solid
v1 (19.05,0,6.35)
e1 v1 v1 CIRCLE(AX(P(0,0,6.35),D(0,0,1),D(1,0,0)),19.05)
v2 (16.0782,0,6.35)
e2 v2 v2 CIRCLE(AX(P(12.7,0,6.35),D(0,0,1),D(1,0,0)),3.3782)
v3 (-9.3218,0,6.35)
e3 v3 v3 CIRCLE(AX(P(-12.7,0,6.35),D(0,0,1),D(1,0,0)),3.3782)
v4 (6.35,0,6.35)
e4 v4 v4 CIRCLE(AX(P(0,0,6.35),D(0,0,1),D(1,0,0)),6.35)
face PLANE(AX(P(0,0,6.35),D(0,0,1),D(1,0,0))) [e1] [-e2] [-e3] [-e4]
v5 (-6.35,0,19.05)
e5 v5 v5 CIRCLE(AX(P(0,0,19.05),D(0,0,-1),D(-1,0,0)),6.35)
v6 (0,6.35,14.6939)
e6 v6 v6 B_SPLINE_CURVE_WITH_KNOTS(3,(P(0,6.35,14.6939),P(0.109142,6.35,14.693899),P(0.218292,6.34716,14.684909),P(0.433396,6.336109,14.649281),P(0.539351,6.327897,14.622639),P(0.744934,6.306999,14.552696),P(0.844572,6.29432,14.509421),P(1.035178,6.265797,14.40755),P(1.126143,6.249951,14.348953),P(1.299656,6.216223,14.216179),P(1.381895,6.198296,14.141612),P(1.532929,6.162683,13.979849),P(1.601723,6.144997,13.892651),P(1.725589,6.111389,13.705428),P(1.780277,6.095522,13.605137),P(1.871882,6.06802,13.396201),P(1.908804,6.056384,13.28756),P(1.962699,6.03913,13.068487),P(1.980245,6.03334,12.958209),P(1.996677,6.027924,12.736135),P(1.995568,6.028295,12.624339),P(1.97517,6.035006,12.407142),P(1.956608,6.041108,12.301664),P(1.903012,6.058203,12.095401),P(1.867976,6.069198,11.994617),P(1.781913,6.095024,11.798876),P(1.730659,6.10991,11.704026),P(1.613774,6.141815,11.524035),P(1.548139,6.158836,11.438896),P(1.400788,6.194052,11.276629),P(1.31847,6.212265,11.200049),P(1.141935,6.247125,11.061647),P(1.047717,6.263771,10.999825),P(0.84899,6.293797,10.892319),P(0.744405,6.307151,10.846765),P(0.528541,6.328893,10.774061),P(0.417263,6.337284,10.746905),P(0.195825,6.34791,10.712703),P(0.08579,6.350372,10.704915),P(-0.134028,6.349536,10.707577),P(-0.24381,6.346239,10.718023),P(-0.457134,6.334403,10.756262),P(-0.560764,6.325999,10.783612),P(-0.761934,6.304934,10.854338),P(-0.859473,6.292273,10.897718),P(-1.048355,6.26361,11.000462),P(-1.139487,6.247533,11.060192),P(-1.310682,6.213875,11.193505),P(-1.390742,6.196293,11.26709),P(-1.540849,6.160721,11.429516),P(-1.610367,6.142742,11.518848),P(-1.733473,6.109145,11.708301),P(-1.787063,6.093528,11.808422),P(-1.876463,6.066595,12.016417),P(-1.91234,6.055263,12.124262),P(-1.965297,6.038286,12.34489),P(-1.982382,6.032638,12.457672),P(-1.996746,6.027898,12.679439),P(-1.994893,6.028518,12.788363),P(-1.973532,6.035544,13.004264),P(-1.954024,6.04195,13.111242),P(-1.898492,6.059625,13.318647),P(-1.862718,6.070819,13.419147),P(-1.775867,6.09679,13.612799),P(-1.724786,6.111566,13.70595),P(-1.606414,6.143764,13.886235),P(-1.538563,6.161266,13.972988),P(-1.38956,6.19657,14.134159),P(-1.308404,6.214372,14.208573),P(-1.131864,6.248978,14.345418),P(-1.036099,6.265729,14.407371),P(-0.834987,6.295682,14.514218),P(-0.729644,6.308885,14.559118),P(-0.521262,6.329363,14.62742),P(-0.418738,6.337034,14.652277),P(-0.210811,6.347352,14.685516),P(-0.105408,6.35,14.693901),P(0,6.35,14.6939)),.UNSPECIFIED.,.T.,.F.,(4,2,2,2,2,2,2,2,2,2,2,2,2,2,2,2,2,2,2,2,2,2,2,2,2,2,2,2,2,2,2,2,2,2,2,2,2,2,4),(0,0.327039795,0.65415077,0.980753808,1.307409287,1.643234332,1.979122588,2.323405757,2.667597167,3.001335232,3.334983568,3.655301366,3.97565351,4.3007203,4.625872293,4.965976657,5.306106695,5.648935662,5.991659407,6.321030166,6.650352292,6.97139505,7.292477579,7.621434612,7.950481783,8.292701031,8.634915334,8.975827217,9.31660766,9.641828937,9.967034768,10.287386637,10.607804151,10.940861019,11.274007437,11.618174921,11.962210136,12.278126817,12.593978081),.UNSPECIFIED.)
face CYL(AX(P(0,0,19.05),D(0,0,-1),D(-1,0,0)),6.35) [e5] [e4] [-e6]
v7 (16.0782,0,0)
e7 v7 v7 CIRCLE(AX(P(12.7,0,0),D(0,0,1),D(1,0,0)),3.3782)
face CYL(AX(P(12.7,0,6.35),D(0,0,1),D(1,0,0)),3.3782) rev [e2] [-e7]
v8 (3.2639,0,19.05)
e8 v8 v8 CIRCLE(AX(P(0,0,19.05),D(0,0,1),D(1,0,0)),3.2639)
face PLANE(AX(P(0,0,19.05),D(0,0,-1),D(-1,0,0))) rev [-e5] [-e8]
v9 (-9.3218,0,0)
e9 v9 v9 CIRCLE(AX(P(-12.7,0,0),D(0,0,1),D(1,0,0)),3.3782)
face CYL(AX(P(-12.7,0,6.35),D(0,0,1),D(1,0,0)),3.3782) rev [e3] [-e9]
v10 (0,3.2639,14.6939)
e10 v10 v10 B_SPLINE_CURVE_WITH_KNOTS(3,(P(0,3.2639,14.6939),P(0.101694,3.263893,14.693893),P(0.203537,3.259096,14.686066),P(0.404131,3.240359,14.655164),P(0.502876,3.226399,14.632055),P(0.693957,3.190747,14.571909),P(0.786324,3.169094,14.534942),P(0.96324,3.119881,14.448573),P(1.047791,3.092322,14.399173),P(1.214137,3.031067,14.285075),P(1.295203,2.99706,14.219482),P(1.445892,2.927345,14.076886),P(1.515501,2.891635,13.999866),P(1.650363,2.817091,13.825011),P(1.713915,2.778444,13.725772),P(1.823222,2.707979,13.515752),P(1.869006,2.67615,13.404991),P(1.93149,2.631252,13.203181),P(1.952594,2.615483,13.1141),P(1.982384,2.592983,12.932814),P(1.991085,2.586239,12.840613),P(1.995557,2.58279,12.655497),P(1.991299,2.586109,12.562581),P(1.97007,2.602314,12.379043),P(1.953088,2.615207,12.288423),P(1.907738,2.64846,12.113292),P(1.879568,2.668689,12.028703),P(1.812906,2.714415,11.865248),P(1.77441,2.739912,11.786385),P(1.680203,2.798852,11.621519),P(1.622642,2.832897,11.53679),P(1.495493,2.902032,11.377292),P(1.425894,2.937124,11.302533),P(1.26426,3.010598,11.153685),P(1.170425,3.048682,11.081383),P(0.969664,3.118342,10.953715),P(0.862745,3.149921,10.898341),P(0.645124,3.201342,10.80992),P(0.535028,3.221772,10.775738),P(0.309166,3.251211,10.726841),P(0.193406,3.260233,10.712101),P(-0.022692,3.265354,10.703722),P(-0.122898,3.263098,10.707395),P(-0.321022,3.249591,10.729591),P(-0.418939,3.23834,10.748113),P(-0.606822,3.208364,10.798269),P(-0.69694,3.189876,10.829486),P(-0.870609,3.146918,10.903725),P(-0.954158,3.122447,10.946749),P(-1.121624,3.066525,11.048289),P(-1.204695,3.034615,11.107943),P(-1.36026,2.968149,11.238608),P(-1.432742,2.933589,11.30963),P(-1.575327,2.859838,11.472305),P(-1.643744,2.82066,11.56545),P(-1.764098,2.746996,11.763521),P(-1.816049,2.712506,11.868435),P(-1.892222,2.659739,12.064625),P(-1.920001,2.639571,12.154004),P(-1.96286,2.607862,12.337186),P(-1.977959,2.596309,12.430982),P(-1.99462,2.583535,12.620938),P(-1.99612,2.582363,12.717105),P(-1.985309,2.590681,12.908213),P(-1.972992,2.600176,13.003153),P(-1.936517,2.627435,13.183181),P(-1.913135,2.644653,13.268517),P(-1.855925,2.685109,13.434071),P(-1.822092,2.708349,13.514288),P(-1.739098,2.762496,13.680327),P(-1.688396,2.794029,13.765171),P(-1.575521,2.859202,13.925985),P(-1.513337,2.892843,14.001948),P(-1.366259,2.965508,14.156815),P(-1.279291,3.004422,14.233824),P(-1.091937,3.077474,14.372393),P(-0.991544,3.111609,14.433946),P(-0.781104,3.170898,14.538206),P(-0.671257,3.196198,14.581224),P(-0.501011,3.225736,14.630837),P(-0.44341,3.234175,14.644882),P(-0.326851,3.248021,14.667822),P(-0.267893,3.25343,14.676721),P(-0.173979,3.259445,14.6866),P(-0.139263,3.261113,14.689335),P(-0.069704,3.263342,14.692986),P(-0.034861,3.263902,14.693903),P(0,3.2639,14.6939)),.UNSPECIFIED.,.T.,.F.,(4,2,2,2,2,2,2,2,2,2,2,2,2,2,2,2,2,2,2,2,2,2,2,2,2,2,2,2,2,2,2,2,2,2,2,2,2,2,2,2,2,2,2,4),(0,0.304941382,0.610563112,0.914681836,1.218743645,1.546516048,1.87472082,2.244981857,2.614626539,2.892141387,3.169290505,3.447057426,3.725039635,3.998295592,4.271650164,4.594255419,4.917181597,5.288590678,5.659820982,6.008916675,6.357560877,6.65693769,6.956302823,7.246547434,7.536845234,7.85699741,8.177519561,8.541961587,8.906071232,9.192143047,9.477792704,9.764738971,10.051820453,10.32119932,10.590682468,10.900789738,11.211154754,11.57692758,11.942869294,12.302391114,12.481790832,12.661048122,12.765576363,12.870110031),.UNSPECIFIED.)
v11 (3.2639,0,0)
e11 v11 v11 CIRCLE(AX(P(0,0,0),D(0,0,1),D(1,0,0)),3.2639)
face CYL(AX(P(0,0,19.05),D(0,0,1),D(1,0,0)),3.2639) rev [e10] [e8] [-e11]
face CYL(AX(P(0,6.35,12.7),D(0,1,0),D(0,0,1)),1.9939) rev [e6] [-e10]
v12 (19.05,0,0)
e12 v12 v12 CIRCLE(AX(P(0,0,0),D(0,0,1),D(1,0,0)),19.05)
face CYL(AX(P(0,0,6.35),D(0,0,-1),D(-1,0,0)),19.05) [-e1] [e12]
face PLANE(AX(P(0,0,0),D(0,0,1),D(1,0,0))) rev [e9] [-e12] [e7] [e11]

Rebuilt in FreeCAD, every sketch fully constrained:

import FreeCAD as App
import Part
import Sketcher

V = App.Vector
Q = App.Units.Quantity

doc = App.newDocument("Part")
body = doc.addObject("PartDesign::Body", "Body")

# Sketch on XY plane
sketch1 = body.newObject("Sketcher::SketchObject", "Sketch")
sketch1.AttachmentSupport = (doc.getObject("XY_Plane"), [""])
sketch1.MapMode = "FlatFace"
sketch1.addGeometry(Part.Circle(V(0, 0, 0), V(0, 0, 1), 19), False)
sketch1.addConstraint(Sketcher.Constraint("Coincident", 0, 3, -1, 1))
sketch1.addConstraint(Sketcher.Constraint("Diameter", 0, Q("1.5 in")))
pad1 = body.newObject("PartDesign::Pad", "Pad")
pad1.Profile = sketch1
pad1.Length = Q("0.25 in")

# Sketch on XY plane
sketch2 = body.newObject("Sketcher::SketchObject", "Sketch001")
sketch2.AttachmentSupport = (doc.getObject("XY_Plane"), [""])
sketch2.MapMode = "FlatFace"
sketch2.addGeometry(Part.Circle(V(0, 0, 0), V(0, 0, 1), 6), False)
sketch2.addConstraint(Sketcher.Constraint("Coincident", 0, 3, -1, 1))
sketch2.addConstraint(Sketcher.Constraint("Diameter", 0, Q("0.5 in")))
pad2 = body.newObject("PartDesign::Pad", "Pad001")
pad2.Profile = sketch2
pad2.Length = Q("0.75 in")

# Sketch on XY plane
sketch3 = body.newObject("Sketcher::SketchObject", "Sketch002")
sketch3.AttachmentSupport = (doc.getObject("XY_Plane"), [""])
sketch3.MapMode = "FlatFace"
sketch3.AttachmentOffset = App.Placement(V(0, 0, 0.75 * 25.4), App.Rotation())
sketch3.addGeometry(Part.Circle(V(0, 0, 0), V(0, 0, 1), 3.3), False)
sketch3.addConstraint(Sketcher.Constraint("Coincident", 0, 3, -1, 1))
sketch3.addConstraint(Sketcher.Constraint("Diameter", 0, Q("0.257 in")))
doc.recompute()
hole = body.newObject("PartDesign::Hole", "Hole")
hole.Profile = sketch3
hole.ThreadType = "None"
hole.Diameter = Q("0.257 in")
hole.DepthType = "ThroughAll"

# Sketch on XZ plane
sketch4 = body.newObject("Sketcher::SketchObject", "Sketch003")
sketch4.AttachmentSupport = (doc.getObject("XZ_Plane"), [""])
sketch4.MapMode = "FlatFace"
sketch4.AttachmentOffset = App.Placement(V(0, 0, -0.25 * 25.4), App.Rotation())
sketch4.addGeometry(Part.Circle(V(0, 12.7, 0), V(0, 0, 1), 2), False)
sketch4.addConstraint(Sketcher.Constraint("PointOnObject", 0, 3, -2))
sketch4.addConstraint(Sketcher.Constraint("Diameter", 0, Q("0.157 in")))
sketch4.addConstraint(Sketcher.Constraint("DistanceY", -1, 1, 0, 3, Q("0.5 in")))
doc.recompute()
hole2 = body.newObject("PartDesign::Hole", "Hole001")
hole2.Profile = sketch4
hole2.ThreadType = "None"
hole2.Diameter = Q("0.157 in")
hole2.DepthType = "Dimension"
hole2.Depth = 6.349
hole2.DrillPoint = "Angled"
hole2.DrillPointAngle = 118
hole2.Reversed = True

# Sketch on XY plane
sketch5 = body.newObject("Sketcher::SketchObject", "Sketch004")
sketch5.AttachmentSupport = (doc.getObject("XY_Plane"), [""])
sketch5.MapMode = "FlatFace"
sketch5.AttachmentOffset = App.Placement(V(0, 0, 0.25 * 25.4), App.Rotation())
sketch5.addGeometry(Part.Circle(V(-12.7, 0, 0), V(0, 0, 1), 3.4), False)
sketch5.addGeometry(Part.Circle(V(12.7, 0, 0), V(0, 0, 1), 3.4), False)
sketch5.addConstraint(Sketcher.Constraint("Equal", 0, 1))
sketch5.addConstraint(Sketcher.Constraint("Symmetric", 0, 3, 1, 3, -1, 1))
sketch5.addConstraint(Sketcher.Constraint("PointOnObject", 0, 3, -1))
sketch5.addConstraint(Sketcher.Constraint("Diameter", 0, Q("0.266 in")))
sketch5.addConstraint(Sketcher.Constraint("DistanceX", 0, 3, 1, 3, Q("1 in")))
doc.recompute()
hole3 = body.newObject("PartDesign::Hole", "Hole002")
hole3.Profile = sketch5
hole3.ThreadType = "None"
hole3.Diameter = Q("0.266 in")
hole3.DepthType = "ThroughAll"

doc.recompute()
